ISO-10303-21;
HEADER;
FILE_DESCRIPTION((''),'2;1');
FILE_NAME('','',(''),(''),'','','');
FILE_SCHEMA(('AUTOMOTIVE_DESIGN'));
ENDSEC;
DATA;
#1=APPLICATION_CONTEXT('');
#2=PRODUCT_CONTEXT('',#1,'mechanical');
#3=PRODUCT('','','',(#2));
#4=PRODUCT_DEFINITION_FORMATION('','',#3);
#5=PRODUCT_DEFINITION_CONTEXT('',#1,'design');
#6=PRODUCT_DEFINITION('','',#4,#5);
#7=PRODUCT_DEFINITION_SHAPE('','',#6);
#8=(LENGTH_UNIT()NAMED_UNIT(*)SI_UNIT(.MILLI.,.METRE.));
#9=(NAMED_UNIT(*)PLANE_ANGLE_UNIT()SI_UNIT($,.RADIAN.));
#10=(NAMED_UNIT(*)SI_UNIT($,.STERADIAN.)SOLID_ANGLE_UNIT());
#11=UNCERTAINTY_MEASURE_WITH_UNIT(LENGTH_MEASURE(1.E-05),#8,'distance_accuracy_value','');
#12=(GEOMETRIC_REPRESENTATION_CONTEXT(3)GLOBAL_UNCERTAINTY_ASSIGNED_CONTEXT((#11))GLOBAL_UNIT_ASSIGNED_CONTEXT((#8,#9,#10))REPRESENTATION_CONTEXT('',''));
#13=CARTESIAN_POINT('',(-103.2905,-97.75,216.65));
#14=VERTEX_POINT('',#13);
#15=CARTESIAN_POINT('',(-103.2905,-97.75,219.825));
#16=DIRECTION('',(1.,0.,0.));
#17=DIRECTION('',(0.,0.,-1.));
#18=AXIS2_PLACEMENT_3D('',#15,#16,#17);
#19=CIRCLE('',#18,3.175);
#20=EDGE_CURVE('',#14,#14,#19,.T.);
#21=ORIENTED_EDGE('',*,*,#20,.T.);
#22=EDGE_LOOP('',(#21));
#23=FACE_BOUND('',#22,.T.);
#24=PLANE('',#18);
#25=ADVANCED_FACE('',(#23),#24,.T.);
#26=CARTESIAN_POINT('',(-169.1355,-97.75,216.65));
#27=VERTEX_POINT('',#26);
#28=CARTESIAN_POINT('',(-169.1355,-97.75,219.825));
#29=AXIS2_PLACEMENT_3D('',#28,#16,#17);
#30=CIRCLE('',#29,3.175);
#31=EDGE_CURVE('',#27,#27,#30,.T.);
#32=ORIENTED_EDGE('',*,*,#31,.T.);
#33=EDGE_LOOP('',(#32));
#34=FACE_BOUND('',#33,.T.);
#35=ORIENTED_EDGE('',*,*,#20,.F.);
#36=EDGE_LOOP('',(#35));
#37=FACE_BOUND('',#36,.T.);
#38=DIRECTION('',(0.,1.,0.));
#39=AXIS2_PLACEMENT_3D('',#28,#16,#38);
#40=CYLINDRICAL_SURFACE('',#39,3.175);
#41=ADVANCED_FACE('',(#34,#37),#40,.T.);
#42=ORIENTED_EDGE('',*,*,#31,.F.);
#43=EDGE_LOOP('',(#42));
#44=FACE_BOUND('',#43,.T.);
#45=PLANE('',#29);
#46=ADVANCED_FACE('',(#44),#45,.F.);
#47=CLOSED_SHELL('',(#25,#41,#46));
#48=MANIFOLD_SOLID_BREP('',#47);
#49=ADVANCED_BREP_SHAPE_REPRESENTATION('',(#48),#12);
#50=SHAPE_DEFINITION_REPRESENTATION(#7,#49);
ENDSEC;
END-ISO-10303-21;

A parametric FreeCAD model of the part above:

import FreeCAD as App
import Part
import Sketcher
Q = App.Units.Quantity

doc = App.newDocument("Part")
body = doc.addObject("PartDesign::Body", "Body")

# Sketch on YZ plane
sketch1 = body.newObject("Sketcher::SketchObject", "Sketch")
sketch1.AttachmentSupport = (doc.getObject("YZ_Plane"), [""])
sketch1.MapMode = "FlatFace"
sketch1.AttachmentOffset = App.Placement(App.Vector(0, 0, -169.1355), App.Rotation())
sketch1.addGeometry(Part.Circle(App.Vector(-97.75, 219.825, 0), App.Vector(0, 0, 1), 3.175), False)
sketch1.addConstraint(Sketcher.Constraint("Diameter", 0, Q("0.25 in")))
sketch1.addConstraint(Sketcher.Constraint("DistanceX", 0, 3, -1, 1, Q("97.75 mm")))
sketch1.addConstraint(Sketcher.Constraint("DistanceY", -1, 1, 0, 3, Q("219.825 mm")))

# Sketch on XY plane
sketch2 = body.newObject("Sketcher::SketchObject", "Sketch001")
sketch2.AttachmentSupport = (doc.getObject("XY_Plane"), [""])
sketch2.MapMode = "FlatFace"
sketch2.AttachmentOffset = App.Placement(App.Vector(0, 0, 219.825), App.Rotation())
sketch2.addGeometry(Part.LineSegment(App.Vector(-169.1355, -97.75, 0), App.Vector(-103.2905, -97.75, 0)), False)
sketch2.addConstraint(Sketcher.Constraint("Horizontal", 0))
sketch2.addConstraint(Sketcher.Constraint("DistanceX", 0, 1, 0, 2, Q("65.845 mm")))
sketch2.addConstraint(Sketcher.Constraint("DistanceX", 0, 1, -1, 1, Q("169.1355 mm")))
sketch2.addConstraint(Sketcher.Constraint("DistanceY", 0, 1, -1, 1, Q("97.75 mm")))
doc.recompute()

additivepipe = body.newObject("PartDesign::AdditivePipe", "AdditivePipe")
additivepipe.Profile = sketch1
additivepipe.Spine = (sketch2, ["Edge1"])

doc.recompute()
